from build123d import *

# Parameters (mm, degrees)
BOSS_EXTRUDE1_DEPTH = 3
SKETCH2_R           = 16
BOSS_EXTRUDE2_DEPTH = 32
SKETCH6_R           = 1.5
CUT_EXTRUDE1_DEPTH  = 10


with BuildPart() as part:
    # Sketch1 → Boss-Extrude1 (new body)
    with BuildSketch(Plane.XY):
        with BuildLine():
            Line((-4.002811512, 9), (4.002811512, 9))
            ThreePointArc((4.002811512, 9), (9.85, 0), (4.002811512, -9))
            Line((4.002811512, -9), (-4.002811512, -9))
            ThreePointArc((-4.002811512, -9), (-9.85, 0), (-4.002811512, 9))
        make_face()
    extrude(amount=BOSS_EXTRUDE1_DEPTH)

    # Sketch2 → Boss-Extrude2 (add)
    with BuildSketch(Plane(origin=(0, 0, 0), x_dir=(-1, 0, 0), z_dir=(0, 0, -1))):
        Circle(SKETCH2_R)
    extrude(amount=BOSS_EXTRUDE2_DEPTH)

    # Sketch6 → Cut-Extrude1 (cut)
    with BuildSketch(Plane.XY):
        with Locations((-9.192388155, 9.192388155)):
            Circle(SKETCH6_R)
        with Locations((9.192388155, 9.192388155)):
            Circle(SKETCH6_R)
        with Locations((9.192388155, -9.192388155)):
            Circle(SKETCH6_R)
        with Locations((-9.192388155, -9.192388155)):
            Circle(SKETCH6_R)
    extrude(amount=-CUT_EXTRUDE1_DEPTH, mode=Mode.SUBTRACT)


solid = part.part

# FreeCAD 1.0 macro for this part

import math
import FreeCAD as App
import Part
import Sketcher
from FreeCAD import Vector

doc = App.newDocument("Part")
body = doc.addObject("PartDesign::Body", "Body")

# Sketch on XY plane
sketch1 = body.newObject("Sketcher::SketchObject", "Sketch")
sketch1.AttachmentSupport = (doc.getObject("XY_Plane"), [""])
sketch1.MapMode = "FlatFace"
sketch1.addGeometry([
    Part.LineSegment(Vector(4.002812, 9, 0), Vector(-4.002812, 9, 0)),
    Part.ArcOfCircle(Part.Circle(Vector(0, 0, 0), Vector(0, 0, 1), 9.85), math.radians(113.977434), math.radians(246.022566)),
    Part.LineSegment(Vector(-4.002812, -9, 0), Vector(4.002812, -9, 0)),
    Part.ArcOfCircle(Part.Circle(Vector(0, 0, 0), Vector(0, 0, 1), 9.85), math.radians(-66.022566), math.radians(66.022566)),
], False)
sketch1.addConstraint([
    Sketcher.Constraint("Coincident", 0, 2, 1, 1),
    Sketcher.Constraint("Coincident", 1, 2, 2, 1),
    Sketcher.Constraint("Coincident", 2, 2, 3, 1),
    Sketcher.Constraint("Coincident", 3, 2, 0, 1),
    Sketcher.Constraint("Horizontal", 0),
    Sketcher.Constraint("Horizontal", 2),
    Sketcher.Constraint("Coincident", 1, 3, -1, 1),
    Sketcher.Constraint("Coincident", 3, 3, -1, 1),
    Sketcher.Constraint("Equal", 1, 3),
    Sketcher.Constraint("Vertical", 0, 2, 1, 2),
    Sketcher.Constraint("Radius", 1, 9.85),
    Sketcher.Constraint("DistanceY", -1, 1, 0, 2, 9.0),
])
pad1 = body.newObject("PartDesign::Pad", "Pad")
pad1.Profile = sketch1
pad1.Length = 3

# Sketch on XY plane
sketch2 = body.newObject("Sketcher::SketchObject", "Sketch001")
sketch2.AttachmentSupport = (doc.getObject("XY_Plane"), [""])
sketch2.MapMode = "FlatFace"
sketch2.addGeometry(Part.Circle(Vector(0, 0, 0), Vector(0, 0, 1), 16), False)
sketch2.addConstraint([
    Sketcher.Constraint("Coincident", 0, 3, -1, 1),
    Sketcher.Constraint("Diameter", 0, 32.0),
])
pad2 = body.newObject("PartDesign::Pad", "Pad001")
pad2.Profile = sketch2
pad2.Length = 32
pad2.Reversed = True

# Sketch on XY plane
sketch3 = body.newObject("Sketcher::SketchObject", "Sketch002")
sketch3.AttachmentSupport = (doc.getObject("XY_Plane"), [""])
sketch3.MapMode = "FlatFace"
sketch3.addGeometry([
    Part.Circle(Vector(-9.192388, 9.192388, 0), Vector(0, 0, 1), 1.5),
    Part.Circle(Vector(9.192388, 9.192388, 0), Vector(0, 0, 1), 1.5),
    Part.Circle(Vector(9.192388, -9.192388, 0), Vector(0, 0, 1), 1.5),
    Part.Circle(Vector(-9.192388, -9.192388, 0), Vector(0, 0, 1), 1.5),
], False)
sketch3.addConstraint([
    Sketcher.Constraint("Equal", 0, 1),
    Sketcher.Constraint("Equal", 1, 2),
    Sketcher.Constraint("Equal", 2, 3),
    Sketcher.Constraint("Symmetric", 0, 3, 2, 3, -1, 1),
    Sketcher.Constraint("Symmetric", 1, 3, 3, 3, -1, 1),
    Sketcher.Constraint("Symmetric", 0, 3, 1, 3, -2),
    Sketcher.Constraint("Diameter", 0, 3.0),
    Sketcher.Constraint("DistanceX", 0, 3, -1, 1, 9.192388),
    Sketcher.Constraint("DistanceY", -1, 1, 0, 3, 9.192388),
])
pocket1 = body.newObject("PartDesign::Pocket", "Pocket")
pocket1.Profile = sketch3
pocket1.Length = 10

doc.recompute()
